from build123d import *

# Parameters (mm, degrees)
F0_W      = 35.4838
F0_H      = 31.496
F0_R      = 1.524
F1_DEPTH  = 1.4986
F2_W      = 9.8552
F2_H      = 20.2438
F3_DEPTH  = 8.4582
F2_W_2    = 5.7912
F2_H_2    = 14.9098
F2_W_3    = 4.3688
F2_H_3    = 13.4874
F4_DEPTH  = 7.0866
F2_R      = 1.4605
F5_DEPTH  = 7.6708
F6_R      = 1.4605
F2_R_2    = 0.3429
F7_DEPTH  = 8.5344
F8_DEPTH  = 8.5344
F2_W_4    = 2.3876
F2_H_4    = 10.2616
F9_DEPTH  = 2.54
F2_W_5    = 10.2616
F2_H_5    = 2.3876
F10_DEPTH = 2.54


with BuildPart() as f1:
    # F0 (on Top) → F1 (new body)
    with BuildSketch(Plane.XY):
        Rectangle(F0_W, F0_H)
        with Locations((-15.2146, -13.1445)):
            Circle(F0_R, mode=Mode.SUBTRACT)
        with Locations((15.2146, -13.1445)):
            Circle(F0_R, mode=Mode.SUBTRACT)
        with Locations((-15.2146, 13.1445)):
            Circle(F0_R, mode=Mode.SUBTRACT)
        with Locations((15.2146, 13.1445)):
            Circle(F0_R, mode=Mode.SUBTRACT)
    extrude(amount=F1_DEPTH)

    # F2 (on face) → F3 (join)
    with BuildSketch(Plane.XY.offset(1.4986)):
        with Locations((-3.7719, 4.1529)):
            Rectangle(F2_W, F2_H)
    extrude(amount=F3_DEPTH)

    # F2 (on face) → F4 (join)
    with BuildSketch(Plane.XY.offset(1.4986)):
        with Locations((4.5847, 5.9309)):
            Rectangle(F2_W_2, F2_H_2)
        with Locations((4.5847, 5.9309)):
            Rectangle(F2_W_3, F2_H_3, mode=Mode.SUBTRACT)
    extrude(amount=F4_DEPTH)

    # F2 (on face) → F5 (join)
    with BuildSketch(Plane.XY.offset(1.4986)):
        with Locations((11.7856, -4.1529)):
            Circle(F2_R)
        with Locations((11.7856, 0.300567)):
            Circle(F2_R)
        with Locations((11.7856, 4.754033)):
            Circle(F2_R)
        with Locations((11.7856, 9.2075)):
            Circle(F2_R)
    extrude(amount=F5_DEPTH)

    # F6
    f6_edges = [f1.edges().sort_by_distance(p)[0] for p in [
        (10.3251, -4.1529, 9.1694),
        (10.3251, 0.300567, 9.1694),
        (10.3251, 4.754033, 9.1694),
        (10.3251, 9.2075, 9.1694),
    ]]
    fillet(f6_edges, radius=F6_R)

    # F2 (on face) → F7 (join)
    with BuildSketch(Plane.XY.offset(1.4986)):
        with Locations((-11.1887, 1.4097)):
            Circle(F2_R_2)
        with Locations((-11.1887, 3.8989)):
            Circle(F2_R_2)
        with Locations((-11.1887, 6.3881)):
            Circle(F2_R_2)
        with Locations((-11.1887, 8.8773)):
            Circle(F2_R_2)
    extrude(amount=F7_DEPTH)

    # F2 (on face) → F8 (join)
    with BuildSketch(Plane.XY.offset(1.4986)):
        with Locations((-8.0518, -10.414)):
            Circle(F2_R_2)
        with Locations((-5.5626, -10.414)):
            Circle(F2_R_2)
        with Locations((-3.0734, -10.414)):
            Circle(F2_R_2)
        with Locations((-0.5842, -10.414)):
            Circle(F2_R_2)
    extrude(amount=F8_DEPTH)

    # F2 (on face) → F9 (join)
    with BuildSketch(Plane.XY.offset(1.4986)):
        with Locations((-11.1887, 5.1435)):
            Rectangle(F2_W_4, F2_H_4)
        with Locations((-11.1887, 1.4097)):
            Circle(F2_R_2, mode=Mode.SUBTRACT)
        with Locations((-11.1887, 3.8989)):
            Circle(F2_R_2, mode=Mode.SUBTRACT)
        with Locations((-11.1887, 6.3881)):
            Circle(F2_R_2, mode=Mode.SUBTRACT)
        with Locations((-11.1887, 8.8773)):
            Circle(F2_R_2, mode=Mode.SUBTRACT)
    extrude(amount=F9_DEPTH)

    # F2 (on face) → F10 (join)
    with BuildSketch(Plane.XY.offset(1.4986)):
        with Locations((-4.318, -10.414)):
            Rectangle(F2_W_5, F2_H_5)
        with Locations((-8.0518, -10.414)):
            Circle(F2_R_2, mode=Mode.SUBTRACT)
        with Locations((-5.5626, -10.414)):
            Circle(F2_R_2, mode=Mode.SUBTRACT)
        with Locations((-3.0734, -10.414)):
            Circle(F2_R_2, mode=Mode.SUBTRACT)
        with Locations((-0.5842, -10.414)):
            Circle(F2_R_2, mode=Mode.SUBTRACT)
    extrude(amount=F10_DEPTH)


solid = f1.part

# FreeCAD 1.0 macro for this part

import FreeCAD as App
import Part
import Sketcher

V = App.Vector
Q = App.Units.Quantity


def edges_at(feature, points):
    """Names of the edges that pass closest to the given points."""
    edges = feature.Shape.Edges
    near = lambda p: min(range(len(edges)), key=lambda i: edges[i].distToShape(Part.Vertex(*p))[0])
    return sorted({f"Edge{near(p) + 1}" for p in points})

doc = App.newDocument("Part")
body = doc.addObject("PartDesign::Body", "Body")

# Sketch on XY plane
sketch1 = doc.addObject("Sketcher::SketchObject", "Sketch")
body.addObject(sketch1)
sketch1.AttachmentSupport = (doc.XY_Plane, [""])
sketch1.MapMode = "FlatFace"
sketch1.addGeometry(Part.LineSegment(V(-17.7, 15.7, 0), V(-17.7, -15.7, 0)), False)
sketch1.addGeometry(Part.LineSegment(V(-17.7, -15.7, 0), V(17.7, -15.7, 0)), False)
sketch1.addGeometry(Part.LineSegment(V(17.7, -15.7, 0), V(17.7, 15.7, 0)), False)
sketch1.addGeometry(Part.LineSegment(V(17.7, 15.7, 0), V(-17.7, 15.7, 0)), False)
sketch1.addGeometry(Part.Circle(V(-15.2, -13.1, 0), V(0, 0, 1), 1.5), False)
sketch1.addGeometry(Part.Circle(V(15.2, -13.1, 0), V(0, 0, 1), 1.5), False)
sketch1.addGeometry(Part.Circle(V(-15.2, 13.1, 0), V(0, 0, 1), 1.5), False)
sketch1.addGeometry(Part.Circle(V(15.2, 13.1, 0), V(0, 0, 1), 1.5), False)
sketch1.addConstraint(Sketcher.Constraint("Coincident", 0, 2, 1, 1))
sketch1.addConstraint(Sketcher.Constraint("Coincident", 1, 2, 2, 1))
sketch1.addConstraint(Sketcher.Constraint("Coincident", 2, 2, 3, 1))
sketch1.addConstraint(Sketcher.Constraint("Coincident", 3, 2, 0, 1))
sketch1.addConstraint(Sketcher.Constraint("Vertical", 0))
sketch1.addConstraint(Sketcher.Constraint("Horizontal", 1))
sketch1.addConstraint(Sketcher.Constraint("Vertical", 2))
sketch1.addConstraint(Sketcher.Constraint("Horizontal", 3))
sketch1.addConstraint(Sketcher.Constraint("Equal", 4, 5))
sketch1.addConstraint(Sketcher.Constraint("Equal", 5, 6))
sketch1.addConstraint(Sketcher.Constraint("Equal", 6, 7))
sketch1.addConstraint(Sketcher.Constraint("Symmetric", 5, 3, 6, 3, -1, 1))
sketch1.addConstraint(Sketcher.Constraint("Symmetric", 4, 3, 7, 3, -1, 1))
sketch1.addConstraint(Sketcher.Constraint("Symmetric", 0, 2, 2, 2, -1, 1))
sketch1.addConstraint(Sketcher.Constraint("Symmetric", 4, 3, 5, 3, -2))
sketch1.addConstraint(Sketcher.Constraint("Diameter", 4, Q("0.12 in")))
sketch1.addConstraint(Sketcher.Constraint("DistanceY", 0, 2, 0, 1, Q("1.24 in")))
sketch1.addConstraint(Sketcher.Constraint("DistanceX", 1, 1, 1, 2, Q("1.397 in")))
sketch1.addConstraint(Sketcher.Constraint("DistanceX", 4, 3, -1, 1, Q("0.599 in")))
sketch1.addConstraint(Sketcher.Constraint("DistanceY", 4, 3, 6, 3, Q("1.035 in")))
pad1 = doc.addObject("PartDesign::Pad", "Pad")
body.addObject(pad1)
pad1.Profile = sketch1
pad1.Length = Q("0.059 in")

# Sketch on XY plane
sketch2 = doc.addObject("Sketcher::SketchObject", "Sketch001")
body.addObject(sketch2)
sketch2.AttachmentSupport = (doc.XY_Plane, [""])
sketch2.MapMode = "FlatFace"
sketch2.AttachmentOffset = App.Placement(V(0, 0, 0.059 * 25.4), App.Rotation())
sketch2.addGeometry(Part.LineSegment(V(-9, 14, 0), V(-9, -6, 0)), False)
sketch2.addGeometry(Part.LineSegment(V(-9, -6, 0), V(1, -6, 0)), False)
sketch2.addGeometry(Part.LineSegment(V(1, -6, 0), V(1, 14, 0)), False)
sketch2.addGeometry(Part.LineSegment(V(1, 14, 0), V(-9, 14, 0)), False)
sketch2.addConstraint(Sketcher.Constraint("Coincident", 0, 2, 1, 1))
sketch2.addConstraint(Sketcher.Constraint("Coincident", 1, 2, 2, 1))
sketch2.addConstraint(Sketcher.Constraint("Coincident", 2, 2, 3, 1))
sketch2.addConstraint(Sketcher.Constraint("Coincident", 3, 2, 0, 1))
sketch2.addConstraint(Sketcher.Constraint("Vertical", 0))
sketch2.addConstraint(Sketcher.Constraint("Horizontal", 1))
sketch2.addConstraint(Sketcher.Constraint("Vertical", 2))
sketch2.addConstraint(Sketcher.Constraint("Horizontal", 3))
sketch2.addConstraint(Sketcher.Constraint("DistanceX", 1, 1, 1, 2, Q("0.388 in")))
sketch2.addConstraint(Sketcher.Constraint("DistanceY", 0, 2, 0, 1, Q("0.797 in")))
sketch2.addConstraint(Sketcher.Constraint("DistanceY", 0, 2, -1, 1, Q("0.235 in")))
sketch2.addConstraint(Sketcher.Constraint("DistanceX", 0, 2, -1, 1, Q("0.3425 in")))
pad2 = doc.addObject("PartDesign::Pad", "Pad001")
body.addObject(pad2)
pad2.Profile = sketch2
pad2.Length = Q("0.333 in")

# Sketch on XY plane
sketch3 = doc.addObject("Sketcher::SketchObject", "Sketch002")
body.addObject(sketch3)
sketch3.AttachmentSupport = (doc.XY_Plane, [""])
sketch3.MapMode = "FlatFace"
sketch3.AttachmentOffset = App.Placement(V(0, 0, 0.059 * 25.4), App.Rotation())
sketch3.addGeometry(Part.LineSegment(V(1.7, 13.4, 0), V(1.7, -1.5, 0)), False)
sketch3.addGeometry(Part.LineSegment(V(1.7, -1.5, 0), V(7.5, -1.5, 0)), False)
sketch3.addGeometry(Part.LineSegment(V(7.5, -1.5, 0), V(7.5, 13.4, 0)), False)
sketch3.addGeometry(Part.LineSegment(V(7.5, 13.4, 0), V(1.7, 13.4, 0)), False)
sketch3.addGeometry(Part.LineSegment(V(6.8, -0.8, 0), V(2.4, -0.8, 0)), False)
sketch3.addGeometry(Part.LineSegment(V(2.4, -0.8, 0), V(2.4, 12.7, 0)), False)
sketch3.addGeometry(Part.LineSegment(V(2.4, 12.7, 0), V(6.8, 12.7, 0)), False)
sketch3.addGeometry(Part.LineSegment(V(6.8, 12.7, 0), V(6.8, -0.8, 0)), False)
sketch3.addConstraint(Sketcher.Constraint("Coincident", 0, 2, 1, 1))
sketch3.addConstraint(Sketcher.Constraint("Coincident", 1, 2, 2, 1))
sketch3.addConstraint(Sketcher.Constraint("Coincident", 2, 2, 3, 1))
sketch3.addConstraint(Sketcher.Constraint("Coincident", 3, 2, 0, 1))
sketch3.addConstraint(Sketcher.Constraint("Coincident", 4, 2, 5, 1))
sketch3.addConstraint(Sketcher.Constraint("Coincident", 5, 2, 6, 1))
sketch3.addConstraint(Sketcher.Constraint("Coincident", 6, 2, 7, 1))
sketch3.addConstraint(Sketcher.Constraint("Coincident", 7, 2, 4, 1))
sketch3.addConstraint(Sketcher.Constraint("Vertical", 0))
sketch3.addConstraint(Sketcher.Constraint("Horizontal", 1))
sketch3.addConstraint(Sketcher.Constraint("Vertical", 2))
sketch3.addConstraint(Sketcher.Constraint("Horizontal", 3))
sketch3.addConstraint(Sketcher.Constraint("Horizontal", 4))
sketch3.addConstraint(Sketcher.Constraint("Vertical", 5))
sketch3.addConstraint(Sketcher.Constraint("Horizontal", 6))
sketch3.addConstraint(Sketcher.Constraint("Vertical", 7))
sketch3.addConstraint(Sketcher.Constraint("DistanceX", 4, 2, 1, 2, Q("0.2 in")))
sketch3.addConstraint(Sketcher.Constraint("DistanceX", 3, 2, 6, 2, Q("0.2 in")))
sketch3.addConstraint(Sketcher.Constraint("DistanceX", 1, 1, 1, 2, Q("0.228 in")))
sketch3.addConstraint(Sketcher.Constraint("DistanceY", 0, 2, 0, 1, Q("0.587 in")))
sketch3.addConstraint(Sketcher.Constraint("DistanceY", 5, 1, 5, 2, Q("0.531 in")))
sketch3.addConstraint(Sketcher.Constraint("DistanceY", 0, 2, -1, 1, Q("0.06 in")))
sketch3.addConstraint(Sketcher.Constraint("DistanceY", 4, 2, -1, 1, Q("0.032 in")))
sketch3.addConstraint(Sketcher.Constraint("DistanceX", -1, 1, 0, 2, Q("0.0665 in")))
pad3 = doc.addObject("PartDesign::Pad", "Pad002")
body.addObject(pad3)
pad3.Profile = sketch3
pad3.Length = Q("0.279 in")

# Sketch on XY plane
sketch4 = doc.addObject("Sketcher::SketchObject", "Sketch003")
body.addObject(sketch4)
sketch4.AttachmentSupport = (doc.XY_Plane, [""])
sketch4.MapMode = "FlatFace"
sketch4.AttachmentOffset = App.Placement(V(0, 0, 0.059 * 25.4), App.Rotation())
sketch4.addGeometry(Part.Circle(V(11.8, -4.2, 0), V(0, 0, 1), 1.5), False)
sketch4.addGeometry(Part.Circle(V(11.8, 0.3, 0), V(0, 0, 1), 1.5), False)
sketch4.addGeometry(Part.Circle(V(11.8, 4.8, 0), V(0, 0, 1), 1.5), False)
sketch4.addGeometry(Part.Circle(V(11.8, 9.2, 0), V(0, 0, 1), 1.5), False)
sketch4.addConstraint(Sketcher.Constraint("Equal", 0, 1))
sketch4.addConstraint(Sketcher.Constraint("Equal", 1, 2))
sketch4.addConstraint(Sketcher.Constraint("Equal", 2, 3))
sketch4.addConstraint(Sketcher.Constraint("Vertical", 0, 3, 1, 3))
sketch4.addConstraint(Sketcher.Constraint("Vertical", 1, 3, 2, 3))
sketch4.addConstraint(Sketcher.Constraint("Vertical", 2, 3, 3, 3))
sketch4.addConstraint(Sketcher.Constraint("Diameter", 0, Q("0.115 in")))
sketch4.addConstraint(Sketcher.Constraint("DistanceX", -1, 1, 0, 3, Q("0.464 in")))
sketch4.addConstraint(Sketcher.Constraint("DistanceY", 0, 3, 3, 3, Q("0.526 in")))
sketch4.addConstraint(Sketcher.Constraint("DistanceY", 0, 3, -1, 1, Q("0.1635 in")))
sketch4.addConstraint(Sketcher.Constraint("DistanceY", -1, 1, 1, 3, Q("0.300567 mm")))
sketch4.addConstraint(Sketcher.Constraint("DistanceY", -1, 1, 2, 3, Q("4.754033 mm")))
pad4 = doc.addObject("PartDesign::Pad", "Pad003")
body.addObject(pad4)
pad4.Profile = sketch4
pad4.Length = Q("0.302 in")
doc.recompute()

fillet = doc.addObject("PartDesign::Fillet", "Fillet")
body.addObject(fillet)
fillet.Base = (pad4, edges_at(pad4, [
    (10.325, -4.153, 9.169),
    (10.325, 0.301, 9.169),
    (10.325, 4.754, 9.169),
    (10.325, 9.207, 9.169),
]))
fillet.Radius = Q("0.0575 in")

# Sketch on XY plane
sketch5 = doc.addObject("Sketcher::SketchObject", "Sketch004")
body.addObject(sketch5)
sketch5.AttachmentSupport = (doc.XY_Plane, [""])
sketch5.MapMode = "FlatFace"
sketch5.AttachmentOffset = App.Placement(V(0, 0, 0.059 * 25.4), App.Rotation())
sketch5.addGeometry(Part.Circle(V(-11.19, 1.41, 0), V(0, 0, 1), 0.34), False)
sketch5.addGeometry(Part.Circle(V(-11.19, 3.9, 0), V(0, 0, 1), 0.34), False)
sketch5.addGeometry(Part.Circle(V(-11.19, 6.39, 0), V(0, 0, 1), 0.34), False)
sketch5.addGeometry(Part.Circle(V(-11.19, 8.88, 0), V(0, 0, 1), 0.34), False)
sketch5.addConstraint(Sketcher.Constraint("Equal", 0, 1))
sketch5.addConstraint(Sketcher.Constraint("Equal", 1, 2))
sketch5.addConstraint(Sketcher.Constraint("Equal", 2, 3))
sketch5.addConstraint(Sketcher.Constraint("Vertical", 0, 3, 1, 3))
sketch5.addConstraint(Sketcher.Constraint("Vertical", 1, 3, 2, 3))
sketch5.addConstraint(Sketcher.Constraint("Vertical", 2, 3, 3, 3))
sketch5.addConstraint(Sketcher.Constraint("Diameter", 0, Q("0.027 in")))
sketch5.addConstraint(Sketcher.Constraint("DistanceY", 0, 3, 1, 3, Q("0.098 in")))
sketch5.addConstraint(Sketcher.Constraint("DistanceY", 1, 3, 2, 3, Q("0.098 in")))
sketch5.addConstraint(Sketcher.Constraint("DistanceY", 2, 3, 3, 3, Q("0.098 in")))
sketch5.addConstraint(Sketcher.Constraint("DistanceX", 0, 3, -1, 1, Q("0.4405 in")))
sketch5.addConstraint(Sketcher.Constraint("DistanceY", -1, 1, 0, 3, Q("0.0555 in")))
pad5 = doc.addObject("PartDesign::Pad", "Pad004")
body.addObject(pad5)
pad5.Profile = sketch5
pad5.Length = Q("0.336 in")

# Sketch on XY plane
sketch6 = doc.addObject("Sketcher::SketchObject", "Sketch005")
body.addObject(sketch6)
sketch6.AttachmentSupport = (doc.XY_Plane, [""])
sketch6.MapMode = "FlatFace"
sketch6.AttachmentOffset = App.Placement(V(0, 0, 0.059 * 25.4), App.Rotation())
sketch6.addGeometry(Part.Circle(V(-8.05, -10.41, 0), V(0, 0, 1), 0.34), False)
sketch6.addGeometry(Part.Circle(V(-5.56, -10.41, 0), V(0, 0, 1), 0.34), False)
sketch6.addGeometry(Part.Circle(V(-3.07, -10.41, 0), V(0, 0, 1), 0.34), False)
sketch6.addGeometry(Part.Circle(V(-0.58, -10.41, 0), V(0, 0, 1), 0.34), False)
sketch6.addConstraint(Sketcher.Constraint("Equal", 0, 1))
sketch6.addConstraint(Sketcher.Constraint("Equal", 1, 2))
sketch6.addConstraint(Sketcher.Constraint("Equal", 2, 3))
sketch6.addConstraint(Sketcher.Constraint("Horizontal", 0, 3, 1, 3))
sketch6.addConstraint(Sketcher.Constraint("Horizontal", 1, 3, 2, 3))
sketch6.addConstraint(Sketcher.Constraint("Horizontal", 2, 3, 3, 3))
sketch6.addConstraint(Sketcher.Constraint("Diameter", 0, Q("0.027 in")))
sketch6.addConstraint(Sketcher.Constraint("DistanceY", 0, 3, -1, 1, Q("0.41 in")))
sketch6.addConstraint(Sketcher.Constraint("DistanceX", 0, 3, -1, 1, Q("0.317 in")))
sketch6.addConstraint(Sketcher.Constraint("DistanceX", 1, 3, -1, 1, Q("0.219 in")))
sketch6.addConstraint(Sketcher.Constraint("DistanceX", 2, 3, -1, 1, Q("0.121 in")))
sketch6.addConstraint(Sketcher.Constraint("DistanceX", 3, 3, -1, 1, Q("0.023 in")))
pad6 = doc.addObject("PartDesign::Pad", "Pad005")
body.addObject(pad6)
pad6.Profile = sketch6
pad6.Length = Q("0.336 in")

# Sketch on XY plane
sketch7 = doc.addObject("Sketcher::SketchObject", "Sketch006")
body.addObject(sketch7)
sketch7.AttachmentSupport = (doc.XY_Plane, [""])
sketch7.MapMode = "FlatFace"
sketch7.AttachmentOffset = App.Placement(V(0, 0, 0.059 * 25.4), App.Rotation())
sketch7.addGeometry(Part.LineSegment(V(-12.38, 10.27, 0), V(-12.38, 0.01, 0)), False)
sketch7.addGeometry(Part.LineSegment(V(-12.38, 0.01, 0), V(-9.99, 0.01, 0)), False)
sketch7.addGeometry(Part.LineSegment(V(-9.99, 0.01, 0), V(-9.99, 10.27, 0)), False)
sketch7.addGeometry(Part.LineSegment(V(-9.99, 10.27, 0), V(-12.38, 10.27, 0)), False)
sketch7.addGeometry(Part.Circle(V(-11.19, 1.41, 0), V(0, 0, 1), 0.34), False)
sketch7.addGeometry(Part.Circle(V(-11.19, 3.9, 0), V(0, 0, 1), 0.34), False)
sketch7.addGeometry(Part.Circle(V(-11.19, 6.39, 0), V(0, 0, 1), 0.34), False)
sketch7.addGeometry(Part.Circle(V(-11.19, 8.88, 0), V(0, 0, 1), 0.34), False)
sketch7.addConstraint(Sketcher.Constraint("Coincident", 0, 2, 1, 1))
sketch7.addConstraint(Sketcher.Constraint("Coincident", 1, 2, 2, 1))
sketch7.addConstraint(Sketcher.Constraint("Coincident", 2, 2, 3, 1))
sketch7.addConstraint(Sketcher.Constraint("Coincident", 3, 2, 0, 1))
sketch7.addConstraint(Sketcher.Constraint("Vertical", 0))
sketch7.addConstraint(Sketcher.Constraint("Horizontal", 1))
sketch7.addConstraint(Sketcher.Constraint("Vertical", 2))
sketch7.addConstraint(Sketcher.Constraint("Horizontal", 3))
sketch7.addConstraint(Sketcher.Constraint("Equal", 4, 5))
sketch7.addConstraint(Sketcher.Constraint("Equal", 5, 6))
sketch7.addConstraint(Sketcher.Constraint("Equal", 6, 7))
sketch7.addConstraint(Sketcher.Constraint("Vertical", 4, 3, 5, 3))
sketch7.addConstraint(Sketcher.Constraint("Vertical", 5, 3, 6, 3))
sketch7.addConstraint(Sketcher.Constraint("Vertical", 6, 3, 7, 3))
sketch7.addConstraint(Sketcher.Constraint("Diameter", 4, Q("0.027 in")))
sketch7.addConstraint(Sketcher.Constraint("DistanceX", 1, 1, 1, 2, Q("0.094 in")))
sketch7.addConstraint(Sketcher.Constraint("DistanceY", 0, 2, 0, 1, Q("0.404 in")))
sketch7.addConstraint(Sketcher.Constraint("DistanceY", 4, 3, 5, 3, Q("0.098 in")))
sketch7.addConstraint(Sketcher.Constraint("DistanceY", 5, 3, 6, 3, Q("0.098 in")))
sketch7.addConstraint(Sketcher.Constraint("DistanceY", 6, 3, 7, 3, Q("0.098 in")))
sketch7.addConstraint(Sketcher.Constraint("DistanceX", 0, 2, 4, 3, Q("0.047 in")))
sketch7.addConstraint(Sketcher.Constraint("DistanceY", 0, 2, 4, 3, Q("0.055 in")))
sketch7.addConstraint(Sketcher.Constraint("DistanceX", 4, 3, -1, 1, Q("0.4405 in")))
sketch7.addConstraint(Sketcher.Constraint("DistanceY", -1, 1, 4, 3, Q("0.0555 in")))
pad7 = doc.addObject("PartDesign::Pad", "Pad006")
body.addObject(pad7)
pad7.Profile = sketch7
pad7.Length = Q("0.1 in")

# Sketch on XY plane
sketch8 = doc.addObject("Sketcher::SketchObject", "Sketch007")
body.addObject(sketch8)
sketch8.AttachmentSupport = (doc.XY_Plane, [""])
sketch8.MapMode = "FlatFace"
sketch8.AttachmentOffset = App.Placement(V(0, 0, 0.059 * 25.4), App.Rotation())
sketch8.addGeometry(Part.LineSegment(V(-9.45, -9.22, 0), V(-9.45, -11.61, 0)), False)
sketch8.addGeometry(Part.LineSegment(V(-9.45, -11.61, 0), V(0.81, -11.61, 0)), False)
sketch8.addGeometry(Part.LineSegment(V(0.81, -11.61, 0), V(0.81, -9.22, 0)), False)
sketch8.addGeometry(Part.LineSegment(V(0.81, -9.22, 0), V(-9.45, -9.22, 0)), False)
sketch8.addGeometry(Part.Circle(V(-8.05, -10.41, 0), V(0, 0, 1), 0.34), False)
sketch8.addGeometry(Part.Circle(V(-5.56, -10.41, 0), V(0, 0, 1), 0.34), False)
sketch8.addGeometry(Part.Circle(V(-3.07, -10.41, 0), V(0, 0, 1), 0.34), False)
sketch8.addGeometry(Part.Circle(V(-0.58, -10.41, 0), V(0, 0, 1), 0.34), False)
sketch8.addConstraint(Sketcher.Constraint("Coincident", 0, 2, 1, 1))
sketch8.addConstraint(Sketcher.Constraint("Coincident", 1, 2, 2, 1))
sketch8.addConstraint(Sketcher.Constraint("Coincident", 2, 2, 3, 1))
sketch8.addConstraint(Sketcher.Constraint("Coincident", 3, 2, 0, 1))
sketch8.addConstraint(Sketcher.Constraint("Vertical", 0))
sketch8.addConstraint(Sketcher.Constraint("Horizontal", 1))
sketch8.addConstraint(Sketcher.Constraint("Vertical", 2))
sketch8.addConstraint(Sketcher.Constraint("Horizontal", 3))
sketch8.addConstraint(Sketcher.Constraint("Equal", 4, 5))
sketch8.addConstraint(Sketcher.Constraint("Equal", 5, 6))
sketch8.addConstraint(Sketcher.Constraint("Equal", 6, 7))
sketch8.addConstraint(Sketcher.Constraint("Horizontal", 4, 3, 5, 3))
sketch8.addConstraint(Sketcher.Constraint("Horizontal", 5, 3, 6, 3))
sketch8.addConstraint(Sketcher.Constraint("Horizontal", 6, 3, 7, 3))
sketch8.addConstraint(Sketcher.Constraint("Diameter", 4, Q("0.027 in")))
sketch8.addConstraint(Sketcher.Constraint("DistanceX", 1, 1, 1, 2, Q("0.404 in")))
sketch8.addConstraint(Sketcher.Constraint("DistanceY", 0, 2, 0, 1, Q("0.094 in")))
sketch8.addConstraint(Sketcher.Constraint("DistanceY", 4, 3, -1, 1, Q("0.41 in")))
sketch8.addConstraint(Sketcher.Constraint("DistanceX", 4, 3, -1, 1, Q("0.317 in")))
sketch8.addConstraint(Sketcher.Constraint("DistanceX", 5, 3, -1, 1, Q("0.219 in")))
sketch8.addConstraint(Sketcher.Constraint("DistanceX", 6, 3, -1, 1, Q("0.121 in")))
sketch8.addConstraint(Sketcher.Constraint("DistanceX", 7, 3, -1, 1, Q("0.023 in")))
sketch8.addConstraint(Sketcher.Constraint("DistanceX", 0, 2, -1, 1, Q("0.372 in")))
sketch8.addConstraint(Sketcher.Constraint("DistanceY", 0, 2, -1, 1, Q("0.457 in")))
pad8 = doc.addObject("PartDesign::Pad", "Pad007")
body.addObject(pad8)
pad8.Profile = sketch8
pad8.Length = Q("0.1 in")

doc.recompute()
